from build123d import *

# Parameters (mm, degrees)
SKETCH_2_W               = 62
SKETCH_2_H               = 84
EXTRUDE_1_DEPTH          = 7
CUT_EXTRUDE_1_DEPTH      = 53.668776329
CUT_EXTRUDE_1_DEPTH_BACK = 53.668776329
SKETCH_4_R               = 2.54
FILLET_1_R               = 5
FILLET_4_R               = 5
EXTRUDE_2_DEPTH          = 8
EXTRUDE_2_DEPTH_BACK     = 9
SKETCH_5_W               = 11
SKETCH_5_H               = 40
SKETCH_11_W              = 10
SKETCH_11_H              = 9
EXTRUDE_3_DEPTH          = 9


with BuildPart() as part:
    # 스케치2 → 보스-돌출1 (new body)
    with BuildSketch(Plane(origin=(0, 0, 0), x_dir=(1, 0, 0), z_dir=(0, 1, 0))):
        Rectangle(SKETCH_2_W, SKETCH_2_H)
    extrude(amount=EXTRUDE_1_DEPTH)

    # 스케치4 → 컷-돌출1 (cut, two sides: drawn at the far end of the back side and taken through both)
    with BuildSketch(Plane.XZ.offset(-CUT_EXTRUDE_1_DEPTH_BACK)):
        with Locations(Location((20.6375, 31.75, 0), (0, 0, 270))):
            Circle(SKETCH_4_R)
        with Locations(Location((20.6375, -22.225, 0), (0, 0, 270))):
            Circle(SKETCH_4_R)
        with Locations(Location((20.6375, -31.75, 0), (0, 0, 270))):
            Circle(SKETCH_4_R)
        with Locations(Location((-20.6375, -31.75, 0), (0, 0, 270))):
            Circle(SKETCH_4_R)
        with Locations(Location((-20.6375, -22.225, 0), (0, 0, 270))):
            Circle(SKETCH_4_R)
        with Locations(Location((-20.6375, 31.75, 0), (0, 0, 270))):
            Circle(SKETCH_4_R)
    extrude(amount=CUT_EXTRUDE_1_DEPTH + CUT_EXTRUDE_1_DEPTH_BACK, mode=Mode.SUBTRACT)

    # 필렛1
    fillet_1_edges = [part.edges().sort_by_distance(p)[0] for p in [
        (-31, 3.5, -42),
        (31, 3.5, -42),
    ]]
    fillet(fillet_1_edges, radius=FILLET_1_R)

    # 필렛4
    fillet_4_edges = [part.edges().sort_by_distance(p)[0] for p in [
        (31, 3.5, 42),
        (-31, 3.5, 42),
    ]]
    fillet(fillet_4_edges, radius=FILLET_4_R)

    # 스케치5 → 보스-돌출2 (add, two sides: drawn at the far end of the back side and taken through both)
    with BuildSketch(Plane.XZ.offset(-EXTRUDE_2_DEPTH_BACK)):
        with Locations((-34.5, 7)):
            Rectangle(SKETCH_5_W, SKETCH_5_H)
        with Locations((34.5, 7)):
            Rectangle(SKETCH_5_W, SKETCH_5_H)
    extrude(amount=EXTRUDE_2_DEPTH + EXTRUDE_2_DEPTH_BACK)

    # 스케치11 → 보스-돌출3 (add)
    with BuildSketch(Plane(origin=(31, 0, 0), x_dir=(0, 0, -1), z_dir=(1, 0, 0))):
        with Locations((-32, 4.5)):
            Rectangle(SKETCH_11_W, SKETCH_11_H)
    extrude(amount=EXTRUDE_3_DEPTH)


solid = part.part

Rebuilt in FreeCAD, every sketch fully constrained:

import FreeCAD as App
import Part
import Sketcher

V = App.Vector
Q = App.Units.Quantity


def edges_at(feature, points):
    """Names of the edges that pass closest to the given points."""
    edges = feature.Shape.Edges
    near = lambda p: min(range(len(edges)), key=lambda i: edges[i].distToShape(Part.Vertex(*p))[0])
    return sorted({f"Edge{near(p) + 1}" for p in points})

doc = App.newDocument("Part")
body = doc.addObject("PartDesign::Body", "Body")

sketch1 = body.newObject("Sketcher::SketchObject", "Sketch")
sketch1.AttachmentSupport = (doc.getObject("XZ_Plane"), [""])
sketch1.MapMode = "FlatFace"
sketch1.addGeometry(Part.LineSegment(V(-31, -42, 0), V(-31, 42, 0)), False)
sketch1.addGeometry(Part.LineSegment(V(-31, 42, 0), V(31, 42, 0)), False)
sketch1.addGeometry(Part.LineSegment(V(31, 42, 0), V(31, -42, 0)), False)
sketch1.addGeometry(Part.LineSegment(V(31, -42, 0), V(-31, -42, 0)), False)
sketch1.addConstraint(Sketcher.Constraint("Coincident", 0, 2, 1, 1))
sketch1.addConstraint(Sketcher.Constraint("Coincident", 1, 2, 2, 1))
sketch1.addConstraint(Sketcher.Constraint("Coincident", 2, 2, 3, 1))
sketch1.addConstraint(Sketcher.Constraint("Coincident", 3, 2, 0, 1))
sketch1.addConstraint(Sketcher.Constraint("Vertical", 0))
sketch1.addConstraint(Sketcher.Constraint("Horizontal", 1))
sketch1.addConstraint(Sketcher.Constraint("Vertical", 2))
sketch1.addConstraint(Sketcher.Constraint("Horizontal", 3))
sketch1.addConstraint(Sketcher.Constraint("Symmetric", 0, 2, 2, 2, -1, 1))
sketch1.addConstraint(Sketcher.Constraint("DistanceX", 1, 1, 1, 2, Q("62 mm")))
sketch1.addConstraint(Sketcher.Constraint("DistanceY", 0, 1, 0, 2, Q("84 mm")))
pad1 = body.newObject("PartDesign::Pad", "Pad")
pad1.Profile = sketch1
pad1.Length = 7
pad1.Reversed = True

sketch2 = body.newObject("Sketcher::SketchObject", "Sketch001")
sketch2.AttachmentSupport = (doc.getObject("XZ_Plane"), [""])
sketch2.MapMode = "FlatFace"
sketch2.addGeometry(Part.Circle(V(20.6375, 31.75, 0), V(0, 0, 1), 2.54), False)
sketch2.addGeometry(Part.Circle(V(20.6375, -22.225, 0), V(0, 0, 1), 2.54), False)
sketch2.addGeometry(Part.Circle(V(20.6375, -31.75, 0), V(0, 0, 1), 2.54), False)
sketch2.addGeometry(Part.Circle(V(-20.6375, -31.75, 0), V(0, 0, 1), 2.54), False)
sketch2.addGeometry(Part.Circle(V(-20.6375, -22.225, 0), V(0, 0, 1), 2.54), False)
sketch2.addGeometry(Part.Circle(V(-20.6375, 31.75, 0), V(0, 0, 1), 2.54), False)
sketch2.addConstraint(Sketcher.Constraint("Equal", 0, 1))
sketch2.addConstraint(Sketcher.Constraint("Equal", 1, 2))
sketch2.addConstraint(Sketcher.Constraint("Equal", 2, 3))
sketch2.addConstraint(Sketcher.Constraint("Equal", 3, 4))
sketch2.addConstraint(Sketcher.Constraint("Equal", 4, 5))
sketch2.addConstraint(Sketcher.Constraint("Symmetric", 0, 3, 3, 3, -1, 1))
sketch2.addConstraint(Sketcher.Constraint("Symmetric", 2, 3, 5, 3, -1, 1))
sketch2.addConstraint(Sketcher.Constraint("Symmetric", 2, 3, 3, 3, -2))
sketch2.addConstraint(Sketcher.Constraint("Symmetric", 1, 3, 4, 3, -2))
sketch2.addConstraint(Sketcher.Constraint("Vertical", 0, 3, 1, 3))
sketch2.addConstraint(Sketcher.Constraint("Diameter", 0, Q("5.08 mm")))
sketch2.addConstraint(Sketcher.Constraint("DistanceY", 2, 3, 0, 3, Q("63.5 mm")))
sketch2.addConstraint(Sketcher.Constraint("DistanceY", 1, 3, -1, 1, Q("22.225 mm")))
sketch2.addConstraint(Sketcher.Constraint("DistanceX", 3, 3, 2, 3, Q("41.275 mm")))
pocket1 = body.newObject("PartDesign::Pocket", "Pocket")
pocket1.Profile = sketch2
pocket1.Type = "ThroughAll"
pocket1.Midplane = True
doc.recompute()

fillet = body.newObject("PartDesign::Fillet", "Fillet")
fillet.Base = (pocket1, edges_at(pocket1, [(-31, 3.5, -42), (31, 3.5, -42)]))
fillet.Radius = 5
doc.recompute()

fillet2 = body.newObject("PartDesign::Fillet", "Fillet001")
fillet2.Base = (fillet, edges_at(fillet, [(31, 3.5, 42), (-31, 3.5, 42)]))
fillet2.Radius = 5

sketch3 = body.newObject("Sketcher::SketchObject", "Sketch002")
sketch3.AttachmentSupport = (doc.getObject("XZ_Plane"), [""])
sketch3.MapMode = "FlatFace"
sketch3.addGeometry(Part.LineSegment(V(-40, 27, 0), V(-40, -13, 0)), False)
sketch3.addGeometry(Part.LineSegment(V(-40, -13, 0), V(-29, -13, 0)), False)
sketch3.addGeometry(Part.LineSegment(V(-29, -13, 0), V(-29, 27, 0)), False)
sketch3.addGeometry(Part.LineSegment(V(-29, 27, 0), V(-40, 27, 0)), False)
sketch3.addGeometry(Part.LineSegment(V(29, 27, 0), V(29, -13, 0)), False)
sketch3.addGeometry(Part.LineSegment(V(29, -13, 0), V(40, -13, 0)), False)
sketch3.addGeometry(Part.LineSegment(V(40, -13, 0), V(40, 27, 0)), False)
sketch3.addGeometry(Part.LineSegment(V(40, 27, 0), V(29, 27, 0)), False)
sketch3.addConstraint(Sketcher.Constraint("Coincident", 0, 2, 1, 1))
sketch3.addConstraint(Sketcher.Constraint("Coincident", 1, 2, 2, 1))
sketch3.addConstraint(Sketcher.Constraint("Coincident", 2, 2, 3, 1))
sketch3.addConstraint(Sketcher.Constraint("Coincident", 3, 2, 0, 1))
sketch3.addConstraint(Sketcher.Constraint("Coincident", 4, 2, 5, 1))
sketch3.addConstraint(Sketcher.Constraint("Coincident", 5, 2, 6, 1))
sketch3.addConstraint(Sketcher.Constraint("Coincident", 6, 2, 7, 1))
sketch3.addConstraint(Sketcher.Constraint("Coincident", 7, 2, 4, 1))
sketch3.addConstraint(Sketcher.Constraint("Vertical", 0))
sketch3.addConstraint(Sketcher.Constraint("Horizontal", 1))
sketch3.addConstraint(Sketcher.Constraint("Vertical", 2))
sketch3.addConstraint(Sketcher.Constraint("Horizontal", 3))
sketch3.addConstraint(Sketcher.Constraint("Vertical", 4))
sketch3.addConstraint(Sketcher.Constraint("Horizontal", 5))
sketch3.addConstraint(Sketcher.Constraint("Vertical", 6))
sketch3.addConstraint(Sketcher.Constraint("Horizontal", 7))
sketch3.addConstraint(Sketcher.Constraint("Symmetric", 1, 2, 4, 2, -2))
sketch3.addConstraint(Sketcher.Constraint("Symmetric", 3, 2, 6, 2, -2))
sketch3.addConstraint(Sketcher.Constraint("DistanceX", 1, 1, 1, 2, Q("11 mm")))
sketch3.addConstraint(Sketcher.Constraint("DistanceY", 0, 2, 0, 1, Q("40 mm")))
sketch3.addConstraint(Sketcher.Constraint("DistanceX", 0, 2, -1, 1, Q("40 mm")))
sketch3.addConstraint(Sketcher.Constraint("DistanceY", 0, 2, -1, 1, Q("13 mm")))
pad2 = body.newObject("PartDesign::Pad", "Pad001")
pad2.Profile = sketch3
pad2.Type = "TwoLengths"
pad2.Length = 8
pad2.Length2 = 9

sketch4 = body.newObject("Sketcher::SketchObject", "Sketch003")
sketch4.AttachmentSupport = (doc.getObject("YZ_Plane"), [""])
sketch4.MapMode = "FlatFace"
sketch4.AttachmentOffset = App.Placement(V(0, 0, 31), App.Rotation())
sketch4.addGeometry(Part.LineSegment(V(9, 37, 0), V(0, 37, 0)), False)
sketch4.addGeometry(Part.LineSegment(V(0, 37, 0), V(0, 27, 0)), False)
sketch4.addGeometry(Part.LineSegment(V(0, 27, 0), V(9, 27, 0)), False)
sketch4.addGeometry(Part.LineSegment(V(9, 27, 0), V(9, 37, 0)), False)
sketch4.addConstraint(Sketcher.Constraint("Coincident", 0, 2, 1, 1))
sketch4.addConstraint(Sketcher.Constraint("Coincident", 1, 2, 2, 1))
sketch4.addConstraint(Sketcher.Constraint("Coincident", 2, 2, 3, 1))
sketch4.addConstraint(Sketcher.Constraint("Coincident", 3, 2, 0, 1))
sketch4.addConstraint(Sketcher.Constraint("Horizontal", 0))
sketch4.addConstraint(Sketcher.Constraint("Vertical", 1))
sketch4.addConstraint(Sketcher.Constraint("Horizontal", 2))
sketch4.addConstraint(Sketcher.Constraint("Vertical", 3))
sketch4.addConstraint(Sketcher.Constraint("PointOnObject", 0, 2, -2))
sketch4.addConstraint(Sketcher.Constraint("DistanceX", 0, 2, 0, 1, Q("9 mm")))
sketch4.addConstraint(Sketcher.Constraint("DistanceY", 1, 2, 1, 1, Q("10 mm")))
sketch4.addConstraint(Sketcher.Constraint("DistanceY", -1, 1, 0, 2, Q("37 mm")))
pad3 = body.newObject("PartDesign::Pad", "Pad002")
pad3.Profile = sketch4
pad3.Length = 9

doc.recompute()
